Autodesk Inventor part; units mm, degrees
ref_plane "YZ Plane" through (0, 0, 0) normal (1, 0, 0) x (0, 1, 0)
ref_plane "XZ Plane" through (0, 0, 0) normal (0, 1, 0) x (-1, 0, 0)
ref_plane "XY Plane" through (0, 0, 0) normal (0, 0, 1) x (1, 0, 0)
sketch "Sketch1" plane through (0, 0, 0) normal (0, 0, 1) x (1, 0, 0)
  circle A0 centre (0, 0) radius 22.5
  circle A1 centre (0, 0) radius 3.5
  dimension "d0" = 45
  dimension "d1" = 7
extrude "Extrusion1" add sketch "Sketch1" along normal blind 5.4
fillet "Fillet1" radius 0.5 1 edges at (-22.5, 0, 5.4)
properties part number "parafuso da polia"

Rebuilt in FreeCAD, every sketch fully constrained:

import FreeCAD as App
import Part
import Sketcher
from FreeCAD import Vector


def edges_at(feature, points):
    """Names of the edges that pass closest to the given points."""
    edges = feature.Shape.Edges
    near = lambda p: min(range(len(edges)), key=lambda i: edges[i].distToShape(Part.Vertex(*p))[0])
    return sorted({f"Edge{near(p) + 1}" for p in points})

doc = App.newDocument("Part")
params = doc.addObject("Spreadsheet::Sheet", "Params")
for row, (alias, value) in enumerate([
    ("sketch1_diameter", "45 mm"),
    ("sketch1_diameter2", "7 mm"),
    ("pad1_length", "5.4 mm"),
    ("fillet_radius", "0.5 mm"),
], start=1):
    params.set(f"A{row}", alias)
    params.set(f"B{row}", "=" + value)
    params.setAlias(f"B{row}", alias)

body = doc.addObject("PartDesign::Body", "Body")

sketch1 = body.newObject("Sketcher::SketchObject", "Sketch")
sketch1.AttachmentSupport = (doc.getObject("XY_Plane"), [""])
sketch1.MapMode = "FlatFace"
sketch1.addGeometry([
    Part.Circle(Vector(0, 0, 0), Vector(0, 0, 1), 22.5),
    Part.Circle(Vector(0, 0, 0), Vector(0, 0, 1), 3.5),
], False)
sketch1.addConstraint([
    Sketcher.Constraint("Coincident", 0, 3, -1, 1),
    Sketcher.Constraint("Coincident", 1, 3, -1, 1),
    Sketcher.Constraint("Diameter", 0, 45.0),
    Sketcher.Constraint("Diameter", 1, 7.0),
])
sketch1.setExpression("Constraints[2]", "Params.sketch1_diameter")
sketch1.setExpression("Constraints[3]", "Params.sketch1_diameter2")
pad1 = body.newObject("PartDesign::Pad", "Pad")
pad1.Profile = sketch1
pad1.setExpression("Length", "Params.pad1_length")
doc.recompute()

fillet = body.newObject("PartDesign::Fillet", "Fillet")
fillet.Base = (pad1, edges_at(pad1, [(-22.5, 0, 5.4)]))
fillet.setExpression("Radius", "Params.fillet_radius")

doc.recompute()
